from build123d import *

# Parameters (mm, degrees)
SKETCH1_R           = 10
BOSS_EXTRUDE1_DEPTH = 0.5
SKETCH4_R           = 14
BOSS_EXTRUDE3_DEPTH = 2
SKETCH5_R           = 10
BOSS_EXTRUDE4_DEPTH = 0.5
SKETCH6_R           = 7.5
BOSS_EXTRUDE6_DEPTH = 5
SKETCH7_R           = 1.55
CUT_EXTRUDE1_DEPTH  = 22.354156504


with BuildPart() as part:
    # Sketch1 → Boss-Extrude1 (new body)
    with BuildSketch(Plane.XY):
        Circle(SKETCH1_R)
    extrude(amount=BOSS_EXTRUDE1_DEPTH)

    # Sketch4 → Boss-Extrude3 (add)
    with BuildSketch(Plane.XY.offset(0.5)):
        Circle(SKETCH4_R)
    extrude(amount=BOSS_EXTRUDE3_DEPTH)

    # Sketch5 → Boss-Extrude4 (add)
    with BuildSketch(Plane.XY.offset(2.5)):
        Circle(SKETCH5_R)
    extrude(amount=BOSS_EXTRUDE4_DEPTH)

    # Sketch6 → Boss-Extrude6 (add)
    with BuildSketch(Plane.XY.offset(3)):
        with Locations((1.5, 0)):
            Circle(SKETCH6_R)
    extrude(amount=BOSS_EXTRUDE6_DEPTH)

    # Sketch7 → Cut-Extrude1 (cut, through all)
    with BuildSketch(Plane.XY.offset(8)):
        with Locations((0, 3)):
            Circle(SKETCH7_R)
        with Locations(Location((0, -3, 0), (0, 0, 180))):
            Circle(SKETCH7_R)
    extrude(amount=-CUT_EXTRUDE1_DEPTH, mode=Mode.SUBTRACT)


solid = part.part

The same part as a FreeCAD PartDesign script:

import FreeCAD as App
import Part
import Sketcher

V = App.Vector
Q = App.Units.Quantity

doc = App.newDocument("Part")
body = doc.addObject("PartDesign::Body", "Body")

sketch1 = body.newObject("Sketcher::SketchObject", "Sketch")
sketch1.AttachmentSupport = (doc.getObject("XY_Plane"), [""])
sketch1.MapMode = "FlatFace"
sketch1.addGeometry(Part.Circle(V(0, 0, 0), V(0, 0, 1), 10), False)
sketch1.addConstraint([
    Sketcher.Constraint("Coincident", 0, 3, -1, 1),
    Sketcher.Constraint("Diameter", 0, Q("20 mm")),
])
pad1 = body.newObject("PartDesign::Pad", "Pad")
pad1.Profile = sketch1
pad1.Length = 0.5

sketch2 = body.newObject("Sketcher::SketchObject", "Sketch001")
sketch2.AttachmentSupport = (doc.getObject("XY_Plane"), [""])
sketch2.MapMode = "FlatFace"
sketch2.AttachmentOffset = App.Placement(V(0, 0, 0.5), App.Rotation())
sketch2.addGeometry(Part.Circle(V(0, 0, 0), V(0, 0, 1), 14), False)
sketch2.addConstraint([
    Sketcher.Constraint("Coincident", 0, 3, -1, 1),
    Sketcher.Constraint("Diameter", 0, Q("28 mm")),
])
pad2 = body.newObject("PartDesign::Pad", "Pad001")
pad2.Profile = sketch2
pad2.Length = 2

sketch3 = body.newObject("Sketcher::SketchObject", "Sketch002")
sketch3.AttachmentSupport = (doc.getObject("XY_Plane"), [""])
sketch3.MapMode = "FlatFace"
sketch3.AttachmentOffset = App.Placement(V(0, 0, 2.5), App.Rotation())
sketch3.addGeometry(Part.Circle(V(0, 0, 0), V(0, 0, 1), 10), False)
sketch3.addConstraint([
    Sketcher.Constraint("Coincident", 0, 3, -1, 1),
    Sketcher.Constraint("Diameter", 0, Q("20 mm")),
])
pad3 = body.newObject("PartDesign::Pad", "Pad002")
pad3.Profile = sketch3
pad3.Length = 0.5

sketch4 = body.newObject("Sketcher::SketchObject", "Sketch003")
sketch4.AttachmentSupport = (doc.getObject("XY_Plane"), [""])
sketch4.MapMode = "FlatFace"
sketch4.AttachmentOffset = App.Placement(V(0, 0, 3), App.Rotation())
sketch4.addGeometry(Part.Circle(V(1.5, 0, 0), V(0, 0, 1), 7.5), False)
sketch4.addConstraint([
    Sketcher.Constraint("PointOnObject", 0, 3, -1),
    Sketcher.Constraint("Diameter", 0, Q("15 mm")),
    Sketcher.Constraint("DistanceX", -1, 1, 0, 3, Q("1.5 mm")),
])
pad4 = body.newObject("PartDesign::Pad", "Pad003")
pad4.Profile = sketch4
pad4.Length = 5

sketch5 = body.newObject("Sketcher::SketchObject", "Sketch004")
sketch5.AttachmentSupport = (doc.getObject("XY_Plane"), [""])
sketch5.MapMode = "FlatFace"
sketch5.AttachmentOffset = App.Placement(V(0, 0, 8), App.Rotation())
sketch5.addGeometry([
    Part.Circle(V(0, 3, 0), V(0, 0, 1), 1.55),
    Part.Circle(V(0, -3, 0), V(0, 0, 1), 1.55),
], False)
sketch5.addConstraint([
    Sketcher.Constraint("Equal", 0, 1),
    Sketcher.Constraint("Symmetric", 0, 3, 1, 3, -1, 1),
    Sketcher.Constraint("PointOnObject", 0, 3, -2),
    Sketcher.Constraint("Diameter", 0, Q("3.1 mm")),
    Sketcher.Constraint("DistanceY", -1, 1, 0, 3, Q("3 mm")),
])
pocket1 = body.newObject("PartDesign::Pocket", "Pocket")
pocket1.Profile = sketch5
pocket1.Type = "ThroughAll"

doc.recompute()
